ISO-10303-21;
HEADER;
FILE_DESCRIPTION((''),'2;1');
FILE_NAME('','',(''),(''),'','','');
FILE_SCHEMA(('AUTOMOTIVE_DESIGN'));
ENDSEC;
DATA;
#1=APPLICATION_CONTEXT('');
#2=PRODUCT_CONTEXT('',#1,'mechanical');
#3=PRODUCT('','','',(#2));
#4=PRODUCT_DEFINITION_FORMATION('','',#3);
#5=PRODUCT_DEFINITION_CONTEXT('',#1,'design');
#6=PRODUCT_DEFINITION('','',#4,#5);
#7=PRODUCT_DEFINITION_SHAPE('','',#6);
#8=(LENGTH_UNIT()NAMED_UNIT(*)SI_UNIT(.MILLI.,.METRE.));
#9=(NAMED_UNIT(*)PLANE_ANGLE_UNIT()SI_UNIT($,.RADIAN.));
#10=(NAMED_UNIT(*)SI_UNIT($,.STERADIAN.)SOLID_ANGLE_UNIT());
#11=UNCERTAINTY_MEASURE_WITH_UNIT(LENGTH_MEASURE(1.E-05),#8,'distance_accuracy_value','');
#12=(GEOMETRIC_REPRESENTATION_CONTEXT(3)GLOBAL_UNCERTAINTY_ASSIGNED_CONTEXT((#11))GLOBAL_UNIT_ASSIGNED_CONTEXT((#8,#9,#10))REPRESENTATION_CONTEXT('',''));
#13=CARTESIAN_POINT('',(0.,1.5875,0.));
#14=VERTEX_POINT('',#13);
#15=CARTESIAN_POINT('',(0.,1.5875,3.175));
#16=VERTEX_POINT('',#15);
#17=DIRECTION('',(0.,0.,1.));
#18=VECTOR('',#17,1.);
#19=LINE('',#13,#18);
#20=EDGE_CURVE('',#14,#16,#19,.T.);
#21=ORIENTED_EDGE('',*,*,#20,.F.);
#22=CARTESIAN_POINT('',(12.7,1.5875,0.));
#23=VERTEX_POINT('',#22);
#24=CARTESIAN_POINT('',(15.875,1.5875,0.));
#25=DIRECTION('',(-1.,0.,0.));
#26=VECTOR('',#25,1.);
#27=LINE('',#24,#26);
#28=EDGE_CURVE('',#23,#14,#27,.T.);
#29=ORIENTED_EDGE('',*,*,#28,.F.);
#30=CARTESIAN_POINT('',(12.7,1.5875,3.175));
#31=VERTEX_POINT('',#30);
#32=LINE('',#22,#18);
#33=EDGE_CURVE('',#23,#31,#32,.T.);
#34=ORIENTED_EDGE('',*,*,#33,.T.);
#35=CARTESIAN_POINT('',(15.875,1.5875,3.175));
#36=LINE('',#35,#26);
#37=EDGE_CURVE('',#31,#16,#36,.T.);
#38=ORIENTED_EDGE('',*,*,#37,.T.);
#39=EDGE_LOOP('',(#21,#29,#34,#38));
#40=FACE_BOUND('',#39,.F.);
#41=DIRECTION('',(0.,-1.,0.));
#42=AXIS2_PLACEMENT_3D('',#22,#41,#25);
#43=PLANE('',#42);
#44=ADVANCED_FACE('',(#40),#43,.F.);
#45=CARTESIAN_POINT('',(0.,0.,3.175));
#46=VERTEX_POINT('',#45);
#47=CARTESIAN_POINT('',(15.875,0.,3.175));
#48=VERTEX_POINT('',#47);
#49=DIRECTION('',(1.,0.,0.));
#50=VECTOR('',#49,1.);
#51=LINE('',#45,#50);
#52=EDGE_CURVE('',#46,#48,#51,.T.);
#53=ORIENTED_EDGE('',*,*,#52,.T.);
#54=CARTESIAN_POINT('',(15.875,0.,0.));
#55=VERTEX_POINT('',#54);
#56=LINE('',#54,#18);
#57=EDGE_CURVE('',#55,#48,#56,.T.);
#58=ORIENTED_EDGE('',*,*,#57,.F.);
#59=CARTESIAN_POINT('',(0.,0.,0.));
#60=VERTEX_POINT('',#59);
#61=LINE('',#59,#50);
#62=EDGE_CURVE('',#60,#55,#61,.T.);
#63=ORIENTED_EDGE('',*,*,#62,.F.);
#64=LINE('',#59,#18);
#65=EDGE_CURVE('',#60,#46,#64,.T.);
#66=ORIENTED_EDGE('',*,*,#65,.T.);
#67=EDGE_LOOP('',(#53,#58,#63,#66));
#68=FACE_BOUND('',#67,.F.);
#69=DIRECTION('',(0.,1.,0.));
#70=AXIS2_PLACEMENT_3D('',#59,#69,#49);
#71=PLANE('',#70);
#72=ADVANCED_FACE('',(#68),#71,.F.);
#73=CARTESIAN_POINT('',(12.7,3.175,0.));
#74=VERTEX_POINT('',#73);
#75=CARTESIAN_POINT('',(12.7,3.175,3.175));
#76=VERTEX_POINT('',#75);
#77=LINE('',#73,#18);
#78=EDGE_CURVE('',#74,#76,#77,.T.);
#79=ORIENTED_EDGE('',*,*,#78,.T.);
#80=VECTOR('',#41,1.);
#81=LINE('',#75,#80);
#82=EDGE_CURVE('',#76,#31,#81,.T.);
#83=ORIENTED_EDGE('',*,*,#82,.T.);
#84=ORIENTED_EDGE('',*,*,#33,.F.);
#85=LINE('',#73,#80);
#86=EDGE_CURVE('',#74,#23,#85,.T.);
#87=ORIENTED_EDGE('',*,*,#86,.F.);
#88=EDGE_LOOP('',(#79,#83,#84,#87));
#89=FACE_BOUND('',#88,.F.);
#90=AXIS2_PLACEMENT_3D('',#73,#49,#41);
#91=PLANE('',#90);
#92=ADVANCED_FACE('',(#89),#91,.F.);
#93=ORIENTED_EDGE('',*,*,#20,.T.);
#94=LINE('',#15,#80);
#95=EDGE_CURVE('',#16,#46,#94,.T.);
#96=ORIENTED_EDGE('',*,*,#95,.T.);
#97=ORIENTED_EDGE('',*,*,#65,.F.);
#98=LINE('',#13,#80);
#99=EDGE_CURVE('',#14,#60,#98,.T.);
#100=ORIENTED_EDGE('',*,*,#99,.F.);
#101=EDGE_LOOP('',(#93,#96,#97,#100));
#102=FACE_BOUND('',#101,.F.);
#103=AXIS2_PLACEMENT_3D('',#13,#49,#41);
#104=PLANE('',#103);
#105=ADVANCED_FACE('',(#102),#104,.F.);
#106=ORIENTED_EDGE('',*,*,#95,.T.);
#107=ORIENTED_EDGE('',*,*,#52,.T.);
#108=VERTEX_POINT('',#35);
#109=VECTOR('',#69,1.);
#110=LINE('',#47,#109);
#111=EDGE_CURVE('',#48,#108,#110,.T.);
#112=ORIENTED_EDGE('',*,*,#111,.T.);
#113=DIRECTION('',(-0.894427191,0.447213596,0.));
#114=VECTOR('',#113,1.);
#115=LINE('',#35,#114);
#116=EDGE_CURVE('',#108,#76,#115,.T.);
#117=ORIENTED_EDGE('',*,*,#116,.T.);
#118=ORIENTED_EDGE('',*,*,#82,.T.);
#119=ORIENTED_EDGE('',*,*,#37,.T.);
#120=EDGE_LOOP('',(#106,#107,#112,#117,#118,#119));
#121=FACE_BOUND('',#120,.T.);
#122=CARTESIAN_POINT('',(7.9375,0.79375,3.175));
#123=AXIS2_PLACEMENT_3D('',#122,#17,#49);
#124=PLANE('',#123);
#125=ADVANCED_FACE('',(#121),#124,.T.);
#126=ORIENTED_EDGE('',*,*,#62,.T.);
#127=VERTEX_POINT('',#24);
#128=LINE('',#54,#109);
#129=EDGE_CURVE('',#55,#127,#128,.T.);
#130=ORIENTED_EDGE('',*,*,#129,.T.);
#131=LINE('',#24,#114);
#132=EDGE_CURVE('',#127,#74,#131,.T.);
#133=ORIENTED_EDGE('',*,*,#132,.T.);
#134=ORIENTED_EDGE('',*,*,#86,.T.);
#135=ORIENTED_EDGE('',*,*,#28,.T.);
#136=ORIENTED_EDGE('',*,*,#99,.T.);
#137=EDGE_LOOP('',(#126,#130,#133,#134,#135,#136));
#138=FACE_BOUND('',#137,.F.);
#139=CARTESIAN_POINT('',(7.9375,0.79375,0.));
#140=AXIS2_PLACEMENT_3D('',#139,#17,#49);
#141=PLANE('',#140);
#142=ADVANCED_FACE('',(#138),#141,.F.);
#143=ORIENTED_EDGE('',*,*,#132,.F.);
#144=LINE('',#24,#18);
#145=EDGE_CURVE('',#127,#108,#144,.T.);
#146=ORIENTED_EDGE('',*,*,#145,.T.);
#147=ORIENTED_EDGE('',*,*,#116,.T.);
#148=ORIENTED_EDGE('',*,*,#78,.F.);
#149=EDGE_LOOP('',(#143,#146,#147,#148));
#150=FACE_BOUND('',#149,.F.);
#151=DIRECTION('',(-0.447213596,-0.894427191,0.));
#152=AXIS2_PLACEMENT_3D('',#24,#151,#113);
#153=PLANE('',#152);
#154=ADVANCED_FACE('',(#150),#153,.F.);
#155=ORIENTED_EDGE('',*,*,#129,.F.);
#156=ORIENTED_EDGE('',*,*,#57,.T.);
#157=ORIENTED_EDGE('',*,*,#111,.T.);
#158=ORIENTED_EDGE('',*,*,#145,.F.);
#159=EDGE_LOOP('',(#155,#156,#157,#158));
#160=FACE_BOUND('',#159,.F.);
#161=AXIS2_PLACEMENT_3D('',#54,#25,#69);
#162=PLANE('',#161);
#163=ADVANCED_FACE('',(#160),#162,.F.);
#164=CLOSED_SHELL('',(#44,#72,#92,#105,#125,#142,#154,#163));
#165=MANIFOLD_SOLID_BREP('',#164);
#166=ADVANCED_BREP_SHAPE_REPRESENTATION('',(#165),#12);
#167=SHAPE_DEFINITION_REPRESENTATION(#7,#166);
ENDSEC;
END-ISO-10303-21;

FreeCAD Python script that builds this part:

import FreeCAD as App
import Part
import Sketcher

V = App.Vector
Q = App.Units.Quantity

doc = App.newDocument("Part")
params = doc.addObject("Spreadsheet::Sheet", "Params")
for row, (alias, value) in enumerate([
    ("sketch1_width", "0.5 in"),
    ("sketch1_width2", "0.625 in"),
    ("sketch1_height", "0.0625 in"),
    ("pad1_length", "0.125 in"),
], start=1):
    params.set(f"A{row}", alias)
    params.set(f"B{row}", "=" + value)
    params.setAlias(f"B{row}", alias)

body = doc.addObject("PartDesign::Body", "Body")

# Sketch on XY plane
sketch1 = doc.addObject("Sketcher::SketchObject", "Sketch")
body.addObject(sketch1)
sketch1.AttachmentSupport = (doc.XY_Plane, [""])
sketch1.MapMode = "FlatFace"
sketch1.addGeometry([
    Part.LineSegment(V(0, 1.6, 0), V(0, 0, 0)),  # 0
    Part.LineSegment(V(0, 0, 0), V(15.9, 0, 0)),  # 1
    Part.LineSegment(V(15.9, 0, 0), V(15.9, 1.6, 0)),  # 2
    Part.LineSegment(V(15.9, 1.6, 0), V(12.7, 3.2, 0)),  # 3
    Part.LineSegment(V(12.7, 3.2, 0), V(12.7, 1.6, 0)),  # 4
    Part.LineSegment(V(12.7, 1.6, 0), V(0, 1.6, 0)),  # 5
], False)
sketch1.addConstraint([
    Sketcher.Constraint("Coincident", 0, 2, 1, 1),
    Sketcher.Constraint("Coincident", 1, 2, 2, 1),
    Sketcher.Constraint("Coincident", 2, 2, 3, 1),
    Sketcher.Constraint("Coincident", 3, 2, 4, 1),
    Sketcher.Constraint("Coincident", 4, 2, 5, 1),
    Sketcher.Constraint("Coincident", 5, 2, 0, 1),
    Sketcher.Constraint("Vertical", 0),
    Sketcher.Constraint("Horizontal", 1),
    Sketcher.Constraint("Vertical", 2),
    Sketcher.Constraint("Vertical", 4),
    Sketcher.Constraint("Horizontal", 5),
    Sketcher.Constraint("Coincident", 0, 2, -1, 1),
    Sketcher.Constraint("Horizontal", 2, 2, 4, 2),
    Sketcher.Constraint("Equal", 2, 4),
    Sketcher.Constraint("DistanceX", 5, 2, 5, 1, Q("0.5 in")),
    Sketcher.Constraint("DistanceX", 1, 1, 1, 2, Q("0.625 in")),
    Sketcher.Constraint("DistanceY", 0, 2, 0, 1, Q("0.0625 in")),
])
sketch1.setExpression("Constraints[14]", "Params.sketch1_width")
sketch1.setExpression("Constraints[15]", "Params.sketch1_width2")
sketch1.setExpression("Constraints[16]", "Params.sketch1_height")
pad1 = doc.addObject("PartDesign::Pad", "Pad")
body.addObject(pad1)
pad1.Profile = sketch1
pad1.setExpression("Length", "Params.pad1_length")

doc.recompute()
